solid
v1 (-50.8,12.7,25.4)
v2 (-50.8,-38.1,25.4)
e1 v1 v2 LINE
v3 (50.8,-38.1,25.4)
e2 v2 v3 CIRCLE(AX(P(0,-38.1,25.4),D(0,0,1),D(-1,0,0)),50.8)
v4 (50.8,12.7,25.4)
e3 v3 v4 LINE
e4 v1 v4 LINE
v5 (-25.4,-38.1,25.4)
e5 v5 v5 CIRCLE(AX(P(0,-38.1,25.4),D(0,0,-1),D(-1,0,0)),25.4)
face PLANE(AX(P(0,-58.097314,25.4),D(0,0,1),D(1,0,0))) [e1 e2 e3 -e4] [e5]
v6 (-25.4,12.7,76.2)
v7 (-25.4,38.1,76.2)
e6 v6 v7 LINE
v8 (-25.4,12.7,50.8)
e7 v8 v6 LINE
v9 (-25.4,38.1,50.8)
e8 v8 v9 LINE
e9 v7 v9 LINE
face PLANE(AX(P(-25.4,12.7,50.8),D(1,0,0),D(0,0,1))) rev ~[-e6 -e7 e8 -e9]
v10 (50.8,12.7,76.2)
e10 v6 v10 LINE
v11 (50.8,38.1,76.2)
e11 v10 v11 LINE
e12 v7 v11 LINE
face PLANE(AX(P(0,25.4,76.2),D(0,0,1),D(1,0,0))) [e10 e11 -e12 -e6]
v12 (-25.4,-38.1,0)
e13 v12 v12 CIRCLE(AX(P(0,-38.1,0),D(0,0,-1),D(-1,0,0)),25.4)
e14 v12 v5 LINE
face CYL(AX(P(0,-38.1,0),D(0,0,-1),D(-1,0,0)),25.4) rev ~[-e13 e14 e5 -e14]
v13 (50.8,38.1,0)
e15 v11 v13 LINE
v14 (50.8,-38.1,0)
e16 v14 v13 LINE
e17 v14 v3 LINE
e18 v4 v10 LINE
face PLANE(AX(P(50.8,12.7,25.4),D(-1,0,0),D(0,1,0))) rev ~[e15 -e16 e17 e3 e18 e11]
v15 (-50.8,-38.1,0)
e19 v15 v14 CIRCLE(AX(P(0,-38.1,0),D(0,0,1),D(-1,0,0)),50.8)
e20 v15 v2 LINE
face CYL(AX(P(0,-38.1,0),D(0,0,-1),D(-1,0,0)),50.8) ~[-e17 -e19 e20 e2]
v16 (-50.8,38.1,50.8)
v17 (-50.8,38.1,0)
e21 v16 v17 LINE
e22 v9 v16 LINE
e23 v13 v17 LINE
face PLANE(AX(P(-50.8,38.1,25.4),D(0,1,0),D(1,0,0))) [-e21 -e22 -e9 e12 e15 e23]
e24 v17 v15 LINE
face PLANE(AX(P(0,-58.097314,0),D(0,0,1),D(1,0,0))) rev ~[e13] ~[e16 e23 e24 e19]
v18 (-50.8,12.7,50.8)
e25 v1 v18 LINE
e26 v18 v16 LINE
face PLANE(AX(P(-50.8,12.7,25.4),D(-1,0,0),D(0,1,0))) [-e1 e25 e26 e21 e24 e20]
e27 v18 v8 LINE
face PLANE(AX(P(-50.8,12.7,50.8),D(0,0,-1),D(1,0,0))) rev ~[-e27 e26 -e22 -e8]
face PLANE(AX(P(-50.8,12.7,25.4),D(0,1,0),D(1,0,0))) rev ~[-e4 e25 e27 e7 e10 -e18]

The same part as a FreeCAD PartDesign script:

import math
import FreeCAD as App
import Part
import Sketcher
Q = App.Units.Quantity

doc = App.newDocument("Part")
params = doc.addObject("Spreadsheet::Sheet", "Params")
for row, (alias, value) in enumerate([
    ("sketch1_diameter", "2 in"),
    ("sketch1_radius", "2 in"),
    ("sketch1_height", "3 in"),
    ("pad1_length", "1 in"),
    ("sketch2_width", "4 in"),
    ("sketch2_height", "1 in"),
    ("pad2_length", "2 in"),
    ("sketch3_width", "1 in"),
], start=1):
    params.set(f"A{row}", alias)
    params.set(f"B{row}", "=" + value)
    params.setAlias(f"B{row}", alias)

body = doc.addObject("PartDesign::Body", "Body")

# Sketch on XY plane
sketch1 = doc.addObject("Sketcher::SketchObject", "Sketch")
body.addObject(sketch1)
sketch1.AttachmentSupport = (doc.XY_Plane, [""])
sketch1.MapMode = "FlatFace"
sketch1.addGeometry([
    Part.ArcOfCircle(Part.Circle(App.Vector(0, -38, 0), App.Vector(0, 0, 1), 51), math.radians(180), math.radians(360)),  # 0
    Part.LineSegment(App.Vector(51, -38, 0), App.Vector(51, 38, 0)),  # 1
    Part.LineSegment(App.Vector(51, 38, 0), App.Vector(-51, 38, 0)),  # 2
    Part.LineSegment(App.Vector(-51, 38, 0), App.Vector(-51, -38, 0)),  # 3
    Part.Circle(App.Vector(0, -38, 0), App.Vector(0, 0, 1), 25),  # 4
], False)
sketch1.addConstraint([
    Sketcher.Constraint("Tangent", 0, 2, 1, 1),
    Sketcher.Constraint("Coincident", 1, 2, 2, 1),
    Sketcher.Constraint("Coincident", 2, 2, 3, 1),
    Sketcher.Constraint("Tangent", 3, 2, 0, 1),
    Sketcher.Constraint("Vertical", 1),
    Sketcher.Constraint("Horizontal", 2),
    Sketcher.Constraint("Vertical", 3),
    Sketcher.Constraint("Coincident", 4, 3, 0, 3),
    Sketcher.Constraint("Symmetric", 0, 2, 2, 2, -1, 1),
    Sketcher.Constraint("Diameter", 4, Q("2 in")),
    Sketcher.Constraint("Radius", 0, Q("2 in")),
    Sketcher.Constraint("DistanceY", 1, 1, 1, 2, Q("3 in")),
])
sketch1.setExpression("Constraints[9]", "Params.sketch1_diameter")
sketch1.setExpression("Constraints[10]", "Params.sketch1_radius")
sketch1.setExpression("Constraints[11]", "Params.sketch1_height")
pad1 = doc.addObject("PartDesign::Pad", "Pad")
body.addObject(pad1)
pad1.Profile = sketch1
pad1.setExpression("Length", "Params.pad1_length")

# Sketch on XY plane
sketch2 = doc.addObject("Sketcher::SketchObject", "Sketch001")
body.addObject(sketch2)
sketch2.AttachmentSupport = (doc.XY_Plane, [""])
sketch2.MapMode = "FlatFace"
sketch2.AttachmentOffset = App.Placement(App.Vector(0, 0, 1 * 25.4), App.Rotation())
sketch2.addGeometry([
    Part.LineSegment(App.Vector(-51, 38, 0), App.Vector(-51, 13, 0)),
    Part.LineSegment(App.Vector(-51, 13, 0), App.Vector(51, 13, 0)),
    Part.LineSegment(App.Vector(51, 13, 0), App.Vector(51, 38, 0)),
    Part.LineSegment(App.Vector(51, 38, 0), App.Vector(-51, 38, 0)),
], False)
sketch2.addConstraint([
    Sketcher.Constraint("Coincident", 0, 2, 1, 1),
    Sketcher.Constraint("Coincident", 1, 2, 2, 1),
    Sketcher.Constraint("Coincident", 2, 2, 3, 1),
    Sketcher.Constraint("Coincident", 3, 2, 0, 1),
    Sketcher.Constraint("Vertical", 0),
    Sketcher.Constraint("Horizontal", 1),
    Sketcher.Constraint("Vertical", 2),
    Sketcher.Constraint("Horizontal", 3),
    Sketcher.Constraint("DistanceX", 1, 1, 1, 2, Q("4 in")),
    Sketcher.Constraint("DistanceY", 0, 2, 0, 1, Q("1 in")),
    Sketcher.Constraint("DistanceX", 0, 2, -1, 1, Q("2 in")),
    Sketcher.Constraint("DistanceY", -1, 1, 0, 2, Q("0.5 in")),
])
sketch2.setExpression("Constraints[8]", "Params.sketch2_width")
sketch2.setExpression("Constraints[9]", "Params.sketch2_height")
pad2 = doc.addObject("PartDesign::Pad", "Pad001")
body.addObject(pad2)
pad2.Profile = sketch2
pad2.setExpression("Length", "Params.pad2_length")

# Sketch on XZ plane
sketch3 = doc.addObject("Sketcher::SketchObject", "Sketch002")
body.addObject(sketch3)
sketch3.AttachmentSupport = (doc.XZ_Plane, [""])
sketch3.MapMode = "FlatFace"
sketch3.AttachmentOffset = App.Placement(App.Vector(0, 0, -0.5 * 25.4), App.Rotation())
sketch3.addGeometry([
    Part.LineSegment(App.Vector(-51, 76, 0), App.Vector(-51, 51, 0)),
    Part.LineSegment(App.Vector(-51, 51, 0), App.Vector(-25, 51, 0)),
    Part.LineSegment(App.Vector(-25, 51, 0), App.Vector(-25, 76, 0)),
    Part.LineSegment(App.Vector(-25, 76, 0), App.Vector(-51, 76, 0)),
], False)
sketch3.addConstraint([
    Sketcher.Constraint("Coincident", 0, 2, 1, 1),
    Sketcher.Constraint("Coincident", 1, 2, 2, 1),
    Sketcher.Constraint("Coincident", 2, 2, 3, 1),
    Sketcher.Constraint("Coincident", 3, 2, 0, 1),
    Sketcher.Constraint("Vertical", 0),
    Sketcher.Constraint("Horizontal", 1),
    Sketcher.Constraint("Vertical", 2),
    Sketcher.Constraint("Horizontal", 3),
    Sketcher.Constraint("Equal", 3, 0),
    Sketcher.Constraint("DistanceX", 1, 1, 1, 2, Q("1 in")),
    Sketcher.Constraint("DistanceX", 0, 2, -1, 1, Q("2 in")),
    Sketcher.Constraint("DistanceY", -1, 1, 0, 2, Q("2 in")),
])
sketch3.setExpression("Constraints[9]", "Params.sketch3_width")
pocket1 = doc.addObject("PartDesign::Pocket", "Pocket")
body.addObject(pocket1)
pocket1.Profile = sketch3
pocket1.Type = "ThroughAll"

doc.recompute()
